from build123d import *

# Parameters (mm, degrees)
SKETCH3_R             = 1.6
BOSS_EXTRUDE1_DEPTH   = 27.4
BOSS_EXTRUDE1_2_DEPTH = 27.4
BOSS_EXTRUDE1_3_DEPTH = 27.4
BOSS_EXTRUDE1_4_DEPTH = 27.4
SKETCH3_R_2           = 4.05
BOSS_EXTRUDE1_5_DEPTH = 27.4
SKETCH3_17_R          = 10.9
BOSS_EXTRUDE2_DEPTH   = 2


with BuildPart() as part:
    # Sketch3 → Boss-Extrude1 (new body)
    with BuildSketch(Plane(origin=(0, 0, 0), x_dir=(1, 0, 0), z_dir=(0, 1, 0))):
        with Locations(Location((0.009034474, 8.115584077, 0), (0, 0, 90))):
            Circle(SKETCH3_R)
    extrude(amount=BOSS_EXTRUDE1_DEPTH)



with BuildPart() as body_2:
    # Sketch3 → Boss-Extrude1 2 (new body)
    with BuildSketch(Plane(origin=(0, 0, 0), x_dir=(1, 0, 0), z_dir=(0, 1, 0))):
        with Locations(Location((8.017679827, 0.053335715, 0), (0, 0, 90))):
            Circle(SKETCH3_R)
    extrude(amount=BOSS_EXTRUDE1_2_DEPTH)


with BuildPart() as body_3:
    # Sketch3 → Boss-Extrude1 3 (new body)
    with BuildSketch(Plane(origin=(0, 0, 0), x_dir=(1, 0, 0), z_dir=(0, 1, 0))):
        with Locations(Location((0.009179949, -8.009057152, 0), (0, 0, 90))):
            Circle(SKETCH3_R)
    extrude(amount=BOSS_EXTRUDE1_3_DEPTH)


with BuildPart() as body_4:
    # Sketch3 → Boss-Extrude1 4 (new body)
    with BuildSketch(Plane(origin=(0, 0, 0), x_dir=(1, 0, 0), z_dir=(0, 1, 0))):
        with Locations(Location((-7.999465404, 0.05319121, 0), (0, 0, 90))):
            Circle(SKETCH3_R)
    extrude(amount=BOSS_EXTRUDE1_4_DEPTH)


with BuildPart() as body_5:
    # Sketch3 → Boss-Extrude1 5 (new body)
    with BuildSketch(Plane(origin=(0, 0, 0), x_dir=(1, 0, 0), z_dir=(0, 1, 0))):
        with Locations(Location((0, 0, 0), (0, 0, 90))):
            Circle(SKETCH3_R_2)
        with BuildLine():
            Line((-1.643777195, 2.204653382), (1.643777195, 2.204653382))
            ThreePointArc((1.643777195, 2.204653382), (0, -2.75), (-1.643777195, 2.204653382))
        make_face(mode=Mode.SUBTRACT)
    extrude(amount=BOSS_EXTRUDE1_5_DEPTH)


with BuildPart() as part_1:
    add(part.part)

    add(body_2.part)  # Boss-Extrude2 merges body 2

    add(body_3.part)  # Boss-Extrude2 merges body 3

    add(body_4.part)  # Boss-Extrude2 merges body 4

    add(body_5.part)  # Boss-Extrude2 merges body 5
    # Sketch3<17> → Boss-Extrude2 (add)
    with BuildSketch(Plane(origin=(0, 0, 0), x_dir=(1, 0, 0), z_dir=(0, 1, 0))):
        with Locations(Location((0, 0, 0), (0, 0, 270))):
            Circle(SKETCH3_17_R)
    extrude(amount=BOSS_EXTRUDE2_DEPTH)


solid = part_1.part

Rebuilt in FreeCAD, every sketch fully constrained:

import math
import FreeCAD as App
import Part
import Sketcher
Q = App.Units.Quantity

doc = App.newDocument("Part")
params = doc.addObject("Spreadsheet::Sheet", "Params")
for row, (alias, value) in enumerate([
    ("sketch1_diameter", "3.2 mm"),
    ("pad1_length", "27.4 mm"),
    ("sketch2_diameter", "3.2 mm"),
    ("pad2_length", "27.4 mm"),
    ("sketch3_diameter", "3.2 mm"),
    ("pad3_length", "27.4 mm"),
    ("sketch4_diameter", "3.2 mm"),
    ("pad4_length", "27.4 mm"),
    ("sketch5_diameter", "8.1 mm"),
    ("sketch5_radius", "2.75 mm"),
    ("pad5_length", "27.4 mm"),
    ("sketch6_diameter", "21.8 mm"),
    ("pad6_length", "2 mm"),
], start=1):
    params.set(f"A{row}", alias)
    params.set(f"B{row}", "=" + value)
    params.setAlias(f"B{row}", alias)

body = doc.addObject("PartDesign::Body", "Body")

sketch1 = doc.addObject("Sketcher::SketchObject", "Sketch")
body.addObject(sketch1)
sketch1.AttachmentSupport = (doc.XZ_Plane, [""])
sketch1.MapMode = "FlatFace"
sketch1.addGeometry(Part.Circle(App.Vector(0, -8.1, 0), App.Vector(0, 0, 1), 1.6), False)
sketch1.addConstraint([
    Sketcher.Constraint("Diameter", 0, Q("3.2 mm")),
    Sketcher.Constraint("DistanceX", -1, 1, 0, 3, Q("0.009034 mm")),
    Sketcher.Constraint("DistanceY", 0, 3, -1, 1, Q("8.115584 mm")),
])
sketch1.setExpression("Constraints[0]", "Params.sketch1_diameter")
pad1 = doc.addObject("PartDesign::Pad", "Pad")
body.addObject(pad1)
pad1.Profile = sketch1
pad1.setExpression("Length", "Params.pad1_length")
pad1.Reversed = True
body2 = doc.addObject("PartDesign::Body", "Body001")

sketch2 = doc.addObject("Sketcher::SketchObject", "Sketch001")
body2.addObject(sketch2)
sketch2.AttachmentSupport = (doc.getObject("XZ_Plane001"), [""])
sketch2.MapMode = "FlatFace"
sketch2.addGeometry(Part.Circle(App.Vector(8, -0.1, 0), App.Vector(0, 0, 1), 1.6), False)
sketch2.addConstraint([
    Sketcher.Constraint("Diameter", 0, Q("3.2 mm")),
    Sketcher.Constraint("DistanceX", -1, 1, 0, 3, Q("8.01768 mm")),
    Sketcher.Constraint("DistanceY", 0, 3, -1, 1, Q("0.053336 mm")),
])
sketch2.setExpression("Constraints[0]", "Params.sketch2_diameter")
pad2 = doc.addObject("PartDesign::Pad", "Pad001")
body2.addObject(pad2)
pad2.Profile = sketch2
pad2.setExpression("Length", "Params.pad2_length")
pad2.Reversed = True
body3 = doc.addObject("PartDesign::Body", "Body002")

sketch3 = doc.addObject("Sketcher::SketchObject", "Sketch002")
body3.addObject(sketch3)
sketch3.AttachmentSupport = (doc.getObject("XZ_Plane002"), [""])
sketch3.MapMode = "FlatFace"
sketch3.addGeometry(Part.Circle(App.Vector(0, 8, 0), App.Vector(0, 0, 1), 1.6), False)
sketch3.addConstraint([
    Sketcher.Constraint("Diameter", 0, Q("3.2 mm")),
    Sketcher.Constraint("DistanceX", -1, 1, 0, 3, Q("0.00918 mm")),
    Sketcher.Constraint("DistanceY", -1, 1, 0, 3, Q("8.009057 mm")),
])
sketch3.setExpression("Constraints[0]", "Params.sketch3_diameter")
pad3 = doc.addObject("PartDesign::Pad", "Pad002")
body3.addObject(pad3)
pad3.Profile = sketch3
pad3.setExpression("Length", "Params.pad3_length")
pad3.Reversed = True
body4 = doc.addObject("PartDesign::Body", "Body003")

sketch4 = doc.addObject("Sketcher::SketchObject", "Sketch003")
body4.addObject(sketch4)
sketch4.AttachmentSupport = (doc.getObject("XZ_Plane003"), [""])
sketch4.MapMode = "FlatFace"
sketch4.addGeometry(Part.Circle(App.Vector(-8, -0.1, 0), App.Vector(0, 0, 1), 1.6), False)
sketch4.addConstraint([
    Sketcher.Constraint("Diameter", 0, Q("3.2 mm")),
    Sketcher.Constraint("DistanceY", 0, 3, -1, 1, Q("0.053191 mm")),
    Sketcher.Constraint("DistanceX", 0, 3, -1, 1, Q("7.999465 mm")),
])
sketch4.setExpression("Constraints[0]", "Params.sketch4_diameter")
pad4 = doc.addObject("PartDesign::Pad", "Pad003")
body4.addObject(pad4)
pad4.Profile = sketch4
pad4.setExpression("Length", "Params.pad4_length")
pad4.Reversed = True
body5 = doc.addObject("PartDesign::Body", "Body004")

sketch5 = doc.addObject("Sketcher::SketchObject", "Sketch004")
body5.addObject(sketch5)
sketch5.AttachmentSupport = (doc.getObject("XZ_Plane004"), [""])
sketch5.MapMode = "FlatFace"
sketch5.addGeometry([
    Part.Circle(App.Vector(0, 0, 0), App.Vector(0, 0, 1), 4),
    Part.ArcOfCircle(Part.Circle(App.Vector(0, 0, 0), App.Vector(0, 0, 1), 2.8), math.radians(-53), math.radians(233)),
    Part.LineSegment(App.Vector(-1.6, -2.2, 0), App.Vector(1.6, -2.2, 0)),
], False)
sketch5.addConstraint([
    Sketcher.Constraint("Coincident", 1, 1, 2, 2),
    Sketcher.Constraint("Coincident", 2, 1, 1, 2),
    Sketcher.Constraint("Horizontal", 2),
    Sketcher.Constraint("Coincident", 0, 3, -1, 1),
    Sketcher.Constraint("Coincident", 1, 3, -1, 1),
    Sketcher.Constraint("Diameter", 0, Q("8.1 mm")),
    Sketcher.Constraint("Radius", 1, Q("2.75 mm")),
    Sketcher.Constraint("DistanceX", 2, 1, 2, 2, Q("3.287554 mm")),
])
sketch5.setExpression("Constraints[5]", "Params.sketch5_diameter")
sketch5.setExpression("Constraints[6]", "Params.sketch5_radius")
pad5 = doc.addObject("PartDesign::Pad", "Pad004")
body5.addObject(pad5)
pad5.Profile = sketch5
pad5.setExpression("Length", "Params.pad5_length")
pad5.Reversed = True
body.AllowCompound = True
doc.recompute()

boolean = doc.addObject("PartDesign::Boolean", "Boolean")
body.addObject(boolean)
boolean.Type = "Fuse"
boolean.addObjects([body2])
doc.recompute()

boolean2 = doc.addObject("PartDesign::Boolean", "Boolean001")
body.addObject(boolean2)
boolean2.Type = "Fuse"
boolean2.addObjects([body3])
doc.recompute()

boolean3 = doc.addObject("PartDesign::Boolean", "Boolean002")
body.addObject(boolean3)
boolean3.Type = "Fuse"
boolean3.addObjects([body4])
doc.recompute()

boolean4 = doc.addObject("PartDesign::Boolean", "Boolean003")
body.addObject(boolean4)
boolean4.Type = "Fuse"
boolean4.addObjects([body5])

sketch6 = doc.addObject("Sketcher::SketchObject", "Sketch005")
body.addObject(sketch6)
sketch6.AttachmentSupport = (doc.XZ_Plane, [""])
sketch6.MapMode = "FlatFace"
sketch6.addGeometry(Part.Circle(App.Vector(0, 0, 0), App.Vector(0, 0, 1), 11), False)
sketch6.addConstraint([
    Sketcher.Constraint("Coincident", 0, 3, -1, 1),
    Sketcher.Constraint("Diameter", 0, Q("21.8 mm")),
])
sketch6.setExpression("Constraints[1]", "Params.sketch6_diameter")
pad6 = doc.addObject("PartDesign::Pad", "Pad005")
body.addObject(pad6)
pad6.Profile = sketch6
pad6.setExpression("Length", "Params.pad6_length")
pad6.Reversed = True

doc.recompute()
